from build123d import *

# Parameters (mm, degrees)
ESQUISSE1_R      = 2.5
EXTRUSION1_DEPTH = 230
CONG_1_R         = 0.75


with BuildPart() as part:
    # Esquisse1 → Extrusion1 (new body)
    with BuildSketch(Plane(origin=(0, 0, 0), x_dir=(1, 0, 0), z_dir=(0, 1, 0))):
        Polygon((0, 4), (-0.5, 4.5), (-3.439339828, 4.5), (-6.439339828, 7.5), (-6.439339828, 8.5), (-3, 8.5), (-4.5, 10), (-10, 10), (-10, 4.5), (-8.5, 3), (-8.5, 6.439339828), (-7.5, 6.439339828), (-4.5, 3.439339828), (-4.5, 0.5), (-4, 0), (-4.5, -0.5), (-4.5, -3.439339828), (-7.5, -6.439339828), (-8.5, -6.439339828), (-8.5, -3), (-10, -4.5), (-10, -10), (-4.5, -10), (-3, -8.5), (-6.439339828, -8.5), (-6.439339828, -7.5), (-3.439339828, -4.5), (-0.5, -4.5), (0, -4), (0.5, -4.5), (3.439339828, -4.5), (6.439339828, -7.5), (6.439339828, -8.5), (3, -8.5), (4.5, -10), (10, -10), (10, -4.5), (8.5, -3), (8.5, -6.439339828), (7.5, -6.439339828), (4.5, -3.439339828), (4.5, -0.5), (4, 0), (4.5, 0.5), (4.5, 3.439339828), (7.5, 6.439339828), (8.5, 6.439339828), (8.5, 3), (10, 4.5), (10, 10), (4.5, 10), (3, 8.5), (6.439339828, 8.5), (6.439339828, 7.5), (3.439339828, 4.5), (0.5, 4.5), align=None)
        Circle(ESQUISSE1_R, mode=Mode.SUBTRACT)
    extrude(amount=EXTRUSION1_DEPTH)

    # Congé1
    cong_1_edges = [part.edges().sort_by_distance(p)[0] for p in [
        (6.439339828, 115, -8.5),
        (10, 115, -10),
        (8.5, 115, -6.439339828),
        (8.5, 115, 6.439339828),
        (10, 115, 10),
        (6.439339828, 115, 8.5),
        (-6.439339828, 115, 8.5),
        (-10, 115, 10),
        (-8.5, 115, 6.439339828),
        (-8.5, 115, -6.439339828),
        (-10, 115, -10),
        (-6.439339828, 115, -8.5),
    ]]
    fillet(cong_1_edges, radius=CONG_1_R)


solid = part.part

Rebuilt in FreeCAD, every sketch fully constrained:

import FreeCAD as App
import Part
import Sketcher

V = App.Vector
Q = App.Units.Quantity


def edges_at(feature, points):
    """Names of the edges that pass closest to the given points."""
    edges = feature.Shape.Edges
    near = lambda p: min(range(len(edges)), key=lambda i: edges[i].distToShape(Part.Vertex(*p))[0])
    return sorted({f"Edge{near(p) + 1}" for p in points})

doc = App.newDocument("Part")
body = doc.addObject("PartDesign::Body", "Body")

# Sketch on XZ plane
sketch1 = body.newObject("Sketcher::SketchObject", "Sketch")
sketch1.AttachmentSupport = (doc.getObject("XZ_Plane"), [""])
sketch1.MapMode = "FlatFace"
sketch1.addGeometry([
    Part.LineSegment(V(0, -4, 0), V(-0.5, -4.5, 0)),  # 0
    Part.LineSegment(V(-0.5, -4.5, 0), V(-3.4, -4.5, 0)),  # 1
    Part.LineSegment(V(-3.4, -4.5, 0), V(-6.4, -7.5, 0)),  # 2
    Part.LineSegment(V(-6.4, -7.5, 0), V(-6.4, -8.5, 0)),  # 3
    Part.LineSegment(V(-6.4, -8.5, 0), V(-3, -8.5, 0)),  # 4
    Part.LineSegment(V(-3, -8.5, 0), V(-4.5, -10, 0)),  # 5
    Part.LineSegment(V(-4.5, -10, 0), V(-10, -10, 0)),  # 6
    Part.LineSegment(V(-10, -10, 0), V(-10, -4.5, 0)),  # 7
    Part.LineSegment(V(-10, -4.5, 0), V(-8.5, -3, 0)),  # 8
    Part.LineSegment(V(-8.5, -3, 0), V(-8.5, -6.4, 0)),  # 9
    Part.LineSegment(V(-8.5, -6.4, 0), V(-7.5, -6.4, 0)),  # 10
    Part.LineSegment(V(-7.5, -6.4, 0), V(-4.5, -3.4, 0)),  # 11
    Part.LineSegment(V(-4.5, -3.4, 0), V(-4.5, -0.5, 0)),  # 12
    Part.LineSegment(V(-4.5, -0.5, 0), V(-4, 0, 0)),  # 13
    Part.LineSegment(V(-4, 0, 0), V(-4.5, 0.5, 0)),  # 14
    Part.LineSegment(V(-4.5, 0.5, 0), V(-4.5, 3.4, 0)),  # 15
    Part.LineSegment(V(-4.5, 3.4, 0), V(-7.5, 6.4, 0)),  # 16
    Part.LineSegment(V(-7.5, 6.4, 0), V(-8.5, 6.4, 0)),  # 17
    Part.LineSegment(V(-8.5, 6.4, 0), V(-8.5, 3, 0)),  # 18
    Part.LineSegment(V(-8.5, 3, 0), V(-10, 4.5, 0)),  # 19
    Part.LineSegment(V(-10, 4.5, 0), V(-10, 10, 0)),  # 20
    Part.LineSegment(V(-10, 10, 0), V(-4.5, 10, 0)),  # 21
    Part.LineSegment(V(-4.5, 10, 0), V(-3, 8.5, 0)),  # 22
    Part.LineSegment(V(-3, 8.5, 0), V(-6.4, 8.5, 0)),  # 23
    Part.LineSegment(V(-6.4, 8.5, 0), V(-6.4, 7.5, 0)),  # 24
    Part.LineSegment(V(-6.4, 7.5, 0), V(-3.4, 4.5, 0)),  # 25
    Part.LineSegment(V(-3.4, 4.5, 0), V(-0.5, 4.5, 0)),  # 26
    Part.LineSegment(V(-0.5, 4.5, 0), V(0, 4, 0)),  # 27
    Part.LineSegment(V(0, 4, 0), V(0.5, 4.5, 0)),  # 28
    Part.LineSegment(V(0.5, 4.5, 0), V(3.4, 4.5, 0)),  # 29
    Part.LineSegment(V(3.4, 4.5, 0), V(6.4, 7.5, 0)),  # 30
    Part.LineSegment(V(6.4, 7.5, 0), V(6.4, 8.5, 0)),  # 31
    Part.LineSegment(V(6.4, 8.5, 0), V(3, 8.5, 0)),  # 32
    Part.LineSegment(V(3, 8.5, 0), V(4.5, 10, 0)),  # 33
    Part.LineSegment(V(4.5, 10, 0), V(10, 10, 0)),  # 34
    Part.LineSegment(V(10, 10, 0), V(10, 4.5, 0)),  # 35
    Part.LineSegment(V(10, 4.5, 0), V(8.5, 3, 0)),  # 36
    Part.LineSegment(V(8.5, 3, 0), V(8.5, 6.4, 0)),  # 37
    Part.LineSegment(V(8.5, 6.4, 0), V(7.5, 6.4, 0)),  # 38
    Part.LineSegment(V(7.5, 6.4, 0), V(4.5, 3.4, 0)),  # 39
    Part.LineSegment(V(4.5, 3.4, 0), V(4.5, 0.5, 0)),  # 40
    Part.LineSegment(V(4.5, 0.5, 0), V(4, 0, 0)),  # 41
    Part.LineSegment(V(4, 0, 0), V(4.5, -0.5, 0)),  # 42
    Part.LineSegment(V(4.5, -0.5, 0), V(4.5, -3.4, 0)),  # 43
    Part.LineSegment(V(4.5, -3.4, 0), V(7.5, -6.4, 0)),  # 44
    Part.LineSegment(V(7.5, -6.4, 0), V(8.5, -6.4, 0)),  # 45
    Part.LineSegment(V(8.5, -6.4, 0), V(8.5, -3, 0)),  # 46
    Part.LineSegment(V(8.5, -3, 0), V(10, -4.5, 0)),  # 47
    Part.LineSegment(V(10, -4.5, 0), V(10, -10, 0)),  # 48
    Part.LineSegment(V(10, -10, 0), V(4.5, -10, 0)),  # 49
    Part.LineSegment(V(4.5, -10, 0), V(3, -8.5, 0)),  # 50
    Part.LineSegment(V(3, -8.5, 0), V(6.4, -8.5, 0)),  # 51
    Part.LineSegment(V(6.4, -8.5, 0), V(6.4, -7.5, 0)),  # 52
    Part.LineSegment(V(6.4, -7.5, 0), V(3.4, -4.5, 0)),  # 53
    Part.LineSegment(V(3.4, -4.5, 0), V(0.5, -4.5, 0)),  # 54
    Part.LineSegment(V(0.5, -4.5, 0), V(0, -4, 0)),  # 55
    Part.Circle(V(0, 0, 0), V(0, 0, 1), 2.5),  # 56
], False)
sketch1.addConstraint([
    Sketcher.Constraint("Coincident", 0, 2, 1, 1),
    Sketcher.Constraint("Coincident", 1, 2, 2, 1),
    Sketcher.Constraint("Coincident", 2, 2, 3, 1),
    Sketcher.Constraint("Coincident", 3, 2, 4, 1),
    Sketcher.Constraint("Coincident", 4, 2, 5, 1),
    Sketcher.Constraint("Coincident", 5, 2, 6, 1),
    Sketcher.Constraint("Coincident", 6, 2, 7, 1),
    Sketcher.Constraint("Coincident", 7, 2, 8, 1),
    Sketcher.Constraint("Coincident", 8, 2, 9, 1),
    Sketcher.Constraint("Coincident", 9, 2, 10, 1),
    Sketcher.Constraint("Coincident", 10, 2, 11, 1),
    Sketcher.Constraint("Coincident", 11, 2, 12, 1),
    Sketcher.Constraint("Coincident", 12, 2, 13, 1),
    Sketcher.Constraint("Coincident", 13, 2, 14, 1),
    Sketcher.Constraint("Coincident", 14, 2, 15, 1),
    Sketcher.Constraint("Coincident", 15, 2, 16, 1),
    Sketcher.Constraint("Coincident", 16, 2, 17, 1),
    Sketcher.Constraint("Coincident", 17, 2, 18, 1),
    Sketcher.Constraint("Coincident", 18, 2, 19, 1),
    Sketcher.Constraint("Coincident", 19, 2, 20, 1),
    Sketcher.Constraint("Coincident", 20, 2, 21, 1),
    Sketcher.Constraint("Coincident", 21, 2, 22, 1),
    Sketcher.Constraint("Coincident", 22, 2, 23, 1),
    Sketcher.Constraint("Coincident", 23, 2, 24, 1),
    Sketcher.Constraint("Coincident", 24, 2, 25, 1),
    Sketcher.Constraint("Coincident", 25, 2, 26, 1),
    Sketcher.Constraint("Coincident", 26, 2, 27, 1),
    Sketcher.Constraint("Coincident", 27, 2, 28, 1),
    Sketcher.Constraint("Coincident", 28, 2, 29, 1),
    Sketcher.Constraint("Coincident", 29, 2, 30, 1),
    Sketcher.Constraint("Coincident", 30, 2, 31, 1),
    Sketcher.Constraint("Coincident", 31, 2, 32, 1),
    Sketcher.Constraint("Coincident", 32, 2, 33, 1),
    Sketcher.Constraint("Coincident", 33, 2, 34, 1),
    Sketcher.Constraint("Coincident", 34, 2, 35, 1),
    Sketcher.Constraint("Coincident", 35, 2, 36, 1),
    Sketcher.Constraint("Coincident", 36, 2, 37, 1),
    Sketcher.Constraint("Coincident", 37, 2, 38, 1),
    Sketcher.Constraint("Coincident", 38, 2, 39, 1),
    Sketcher.Constraint("Coincident", 39, 2, 40, 1),
    Sketcher.Constraint("Coincident", 40, 2, 41, 1),
    Sketcher.Constraint("Coincident", 41, 2, 42, 1),
    Sketcher.Constraint("Coincident", 42, 2, 43, 1),
    Sketcher.Constraint("Coincident", 43, 2, 44, 1),
    Sketcher.Constraint("Coincident", 44, 2, 45, 1),
    Sketcher.Constraint("Coincident", 45, 2, 46, 1),
    Sketcher.Constraint("Coincident", 46, 2, 47, 1),
    Sketcher.Constraint("Coincident", 47, 2, 48, 1),
    Sketcher.Constraint("Coincident", 48, 2, 49, 1),
    Sketcher.Constraint("Coincident", 49, 2, 50, 1),
    Sketcher.Constraint("Coincident", 50, 2, 51, 1),
    Sketcher.Constraint("Coincident", 51, 2, 52, 1),
    Sketcher.Constraint("Coincident", 52, 2, 53, 1),
    Sketcher.Constraint("Coincident", 53, 2, 54, 1),
    Sketcher.Constraint("Coincident", 54, 2, 55, 1),
    Sketcher.Constraint("Coincident", 55, 2, 0, 1),
    Sketcher.Constraint("Horizontal", 1),
    Sketcher.Constraint("Vertical", 3),
    Sketcher.Constraint("Horizontal", 4),
    Sketcher.Constraint("Horizontal", 6),
    Sketcher.Constraint("Vertical", 7),
    Sketcher.Constraint("Vertical", 9),
    Sketcher.Constraint("Horizontal", 10),
    Sketcher.Constraint("Vertical", 12),
    Sketcher.Constraint("Vertical", 15),
    Sketcher.Constraint("Horizontal", 17),
    Sketcher.Constraint("Vertical", 18),
    Sketcher.Constraint("Vertical", 20),
    Sketcher.Constraint("Horizontal", 21),
    Sketcher.Constraint("Horizontal", 23),
    Sketcher.Constraint("Vertical", 24),
    Sketcher.Constraint("Horizontal", 26),
    Sketcher.Constraint("Horizontal", 29),
    Sketcher.Constraint("Vertical", 31),
    Sketcher.Constraint("Horizontal", 32),
    Sketcher.Constraint("Horizontal", 34),
    Sketcher.Constraint("Vertical", 35),
    Sketcher.Constraint("Vertical", 37),
    Sketcher.Constraint("Horizontal", 38),
    Sketcher.Constraint("Vertical", 40),
    Sketcher.Constraint("Vertical", 43),
    Sketcher.Constraint("Horizontal", 45),
    Sketcher.Constraint("Vertical", 46),
    Sketcher.Constraint("Vertical", 48),
    Sketcher.Constraint("Horizontal", 49),
    Sketcher.Constraint("Horizontal", 51),
    Sketcher.Constraint("Vertical", 52),
    Sketcher.Constraint("Horizontal", 54),
    Sketcher.Constraint("Coincident", 56, 3, -1, 1),
    Sketcher.Constraint("Symmetric", 0, 2, 28, 2, -1, 1),
    Sketcher.Constraint("Symmetric", 2, 2, 30, 2, -1, 1),
    Sketcher.Constraint("Symmetric", 4, 2, 32, 2, -1, 1),
    Sketcher.Constraint("Symmetric", 5, 2, 33, 2, -1, 1),
    Sketcher.Constraint("Symmetric", 7, 2, 35, 2, -1, 1),
    Sketcher.Constraint("Symmetric", 8, 2, 36, 2, -1, 1),
    Sketcher.Constraint("Symmetric", 10, 2, 38, 2, -1, 1),
    Sketcher.Constraint("Symmetric", 11, 2, 39, 2, -1, 1),
    Sketcher.Constraint("Symmetric", 13, 2, 41, 2, -1, 1),
    Sketcher.Constraint("Symmetric", 14, 2, 42, 2, -1, 1),
    Sketcher.Constraint("Symmetric", 16, 2, 44, 2, -1, 1),
    Sketcher.Constraint("Symmetric", 18, 2, 46, 2, -1, 1),
    Sketcher.Constraint("Symmetric", 19, 2, 47, 2, -1, 1),
    Sketcher.Constraint("Symmetric", 21, 2, 49, 2, -1, 1),
    Sketcher.Constraint("Symmetric", 22, 2, 50, 2, -1, 1),
    Sketcher.Constraint("Symmetric", 24, 2, 52, 2, -1, 1),
    Sketcher.Constraint("Symmetric", 25, 2, 53, 2, -1, 1),
    Sketcher.Constraint("Symmetric", 27, 2, 55, 2, -1, 1),
    Sketcher.Constraint("Symmetric", 26, 2, 28, 2, -2),
    Sketcher.Constraint("Symmetric", 24, 2, 30, 2, -2),
    Sketcher.Constraint("Symmetric", 22, 2, 32, 2, -2),
    Sketcher.Constraint("Symmetric", 21, 2, 33, 2, -2),
    Sketcher.Constraint("Symmetric", 19, 2, 35, 2, -2),
    Sketcher.Constraint("Symmetric", 18, 2, 36, 2, -2),
    Sketcher.Constraint("Symmetric", 16, 2, 38, 2, -2),
    Sketcher.Constraint("Symmetric", 15, 2, 39, 2, -2),
    Sketcher.Constraint("PointOnObject", 13, 2, -1),
    Sketcher.Constraint("PointOnObject", 27, 2, -2),
    Sketcher.Constraint("Parallel", 0, 2),
    Sketcher.Constraint("Parallel", 2, 5),
    Sketcher.Constraint("Parallel", 5, 8),
    Sketcher.Constraint("Parallel", 8, 11),
    Sketcher.Constraint("Parallel", 11, 13),
    Sketcher.Constraint("Perpendicular", 13, 14),
    Sketcher.Constraint("Parallel", 14, 16),
    Sketcher.Constraint("Parallel", 22, 25),
    Sketcher.Constraint("Parallel", 28, 30),
    Sketcher.Constraint("Parallel", 39, 41),
    Sketcher.Constraint("Parallel", 42, 44),
    Sketcher.Constraint("Parallel", 53, 55),
    Sketcher.Constraint("Horizontal", 1, 2, 7, 2),
    Sketcher.Constraint("Vertical", 5, 2, 11, 2),
    Sketcher.Constraint("Equal", 45, 3),
    Sketcher.Constraint("Equal", 49, 7),
    Sketcher.Constraint("Equal", 51, 9),
    Sketcher.Constraint("Equal", 54, 12),
    Sketcher.Constraint("Equal", 5, 8),
    Sketcher.Constraint("Equal", 0, 13),
    Sketcher.Constraint("Diameter", 56, Q("5 mm")),
    Sketcher.Constraint("DistanceX", 10, 1, 10, 2, Q("1 mm")),
    Sketcher.Constraint("DistanceX", 6, 2, 6, 1, Q("5.5 mm")),
    Sketcher.Constraint("DistanceX", 4, 2, -1, 1, Q("3 mm")),
    Sketcher.Constraint("DistanceY", 5, 2, -1, 1, Q("10 mm")),
    Sketcher.Constraint("DistanceX", 13, 2, -1, 1, Q("4 mm")),
    Sketcher.Constraint("DistanceX", 1, 2, 1, 1, Q("2.93934 mm")),
])
pad1 = body.newObject("PartDesign::Pad", "Pad")
pad1.Profile = sketch1
pad1.Length = 230
pad1.Reversed = True
doc.recompute()

fillet = body.newObject("PartDesign::Fillet", "Fillet")
fillet.Base = (pad1, edges_at(pad1, [
    (6.439, 115, -8.5),
    (10, 115, -10),
    (8.5, 115, -6.439),
    (8.5, 115, 6.439),
    (10, 115, 10),
    (6.439, 115, 8.5),
    (-6.439, 115, 8.5),
    (-10, 115, 10),
    (-8.5, 115, 6.439),
    (-8.5, 115, -6.439),
    (-10, 115, -10),
    (-6.439, 115, -8.5),
]))
fillet.Radius = 0.75

doc.recompute()
